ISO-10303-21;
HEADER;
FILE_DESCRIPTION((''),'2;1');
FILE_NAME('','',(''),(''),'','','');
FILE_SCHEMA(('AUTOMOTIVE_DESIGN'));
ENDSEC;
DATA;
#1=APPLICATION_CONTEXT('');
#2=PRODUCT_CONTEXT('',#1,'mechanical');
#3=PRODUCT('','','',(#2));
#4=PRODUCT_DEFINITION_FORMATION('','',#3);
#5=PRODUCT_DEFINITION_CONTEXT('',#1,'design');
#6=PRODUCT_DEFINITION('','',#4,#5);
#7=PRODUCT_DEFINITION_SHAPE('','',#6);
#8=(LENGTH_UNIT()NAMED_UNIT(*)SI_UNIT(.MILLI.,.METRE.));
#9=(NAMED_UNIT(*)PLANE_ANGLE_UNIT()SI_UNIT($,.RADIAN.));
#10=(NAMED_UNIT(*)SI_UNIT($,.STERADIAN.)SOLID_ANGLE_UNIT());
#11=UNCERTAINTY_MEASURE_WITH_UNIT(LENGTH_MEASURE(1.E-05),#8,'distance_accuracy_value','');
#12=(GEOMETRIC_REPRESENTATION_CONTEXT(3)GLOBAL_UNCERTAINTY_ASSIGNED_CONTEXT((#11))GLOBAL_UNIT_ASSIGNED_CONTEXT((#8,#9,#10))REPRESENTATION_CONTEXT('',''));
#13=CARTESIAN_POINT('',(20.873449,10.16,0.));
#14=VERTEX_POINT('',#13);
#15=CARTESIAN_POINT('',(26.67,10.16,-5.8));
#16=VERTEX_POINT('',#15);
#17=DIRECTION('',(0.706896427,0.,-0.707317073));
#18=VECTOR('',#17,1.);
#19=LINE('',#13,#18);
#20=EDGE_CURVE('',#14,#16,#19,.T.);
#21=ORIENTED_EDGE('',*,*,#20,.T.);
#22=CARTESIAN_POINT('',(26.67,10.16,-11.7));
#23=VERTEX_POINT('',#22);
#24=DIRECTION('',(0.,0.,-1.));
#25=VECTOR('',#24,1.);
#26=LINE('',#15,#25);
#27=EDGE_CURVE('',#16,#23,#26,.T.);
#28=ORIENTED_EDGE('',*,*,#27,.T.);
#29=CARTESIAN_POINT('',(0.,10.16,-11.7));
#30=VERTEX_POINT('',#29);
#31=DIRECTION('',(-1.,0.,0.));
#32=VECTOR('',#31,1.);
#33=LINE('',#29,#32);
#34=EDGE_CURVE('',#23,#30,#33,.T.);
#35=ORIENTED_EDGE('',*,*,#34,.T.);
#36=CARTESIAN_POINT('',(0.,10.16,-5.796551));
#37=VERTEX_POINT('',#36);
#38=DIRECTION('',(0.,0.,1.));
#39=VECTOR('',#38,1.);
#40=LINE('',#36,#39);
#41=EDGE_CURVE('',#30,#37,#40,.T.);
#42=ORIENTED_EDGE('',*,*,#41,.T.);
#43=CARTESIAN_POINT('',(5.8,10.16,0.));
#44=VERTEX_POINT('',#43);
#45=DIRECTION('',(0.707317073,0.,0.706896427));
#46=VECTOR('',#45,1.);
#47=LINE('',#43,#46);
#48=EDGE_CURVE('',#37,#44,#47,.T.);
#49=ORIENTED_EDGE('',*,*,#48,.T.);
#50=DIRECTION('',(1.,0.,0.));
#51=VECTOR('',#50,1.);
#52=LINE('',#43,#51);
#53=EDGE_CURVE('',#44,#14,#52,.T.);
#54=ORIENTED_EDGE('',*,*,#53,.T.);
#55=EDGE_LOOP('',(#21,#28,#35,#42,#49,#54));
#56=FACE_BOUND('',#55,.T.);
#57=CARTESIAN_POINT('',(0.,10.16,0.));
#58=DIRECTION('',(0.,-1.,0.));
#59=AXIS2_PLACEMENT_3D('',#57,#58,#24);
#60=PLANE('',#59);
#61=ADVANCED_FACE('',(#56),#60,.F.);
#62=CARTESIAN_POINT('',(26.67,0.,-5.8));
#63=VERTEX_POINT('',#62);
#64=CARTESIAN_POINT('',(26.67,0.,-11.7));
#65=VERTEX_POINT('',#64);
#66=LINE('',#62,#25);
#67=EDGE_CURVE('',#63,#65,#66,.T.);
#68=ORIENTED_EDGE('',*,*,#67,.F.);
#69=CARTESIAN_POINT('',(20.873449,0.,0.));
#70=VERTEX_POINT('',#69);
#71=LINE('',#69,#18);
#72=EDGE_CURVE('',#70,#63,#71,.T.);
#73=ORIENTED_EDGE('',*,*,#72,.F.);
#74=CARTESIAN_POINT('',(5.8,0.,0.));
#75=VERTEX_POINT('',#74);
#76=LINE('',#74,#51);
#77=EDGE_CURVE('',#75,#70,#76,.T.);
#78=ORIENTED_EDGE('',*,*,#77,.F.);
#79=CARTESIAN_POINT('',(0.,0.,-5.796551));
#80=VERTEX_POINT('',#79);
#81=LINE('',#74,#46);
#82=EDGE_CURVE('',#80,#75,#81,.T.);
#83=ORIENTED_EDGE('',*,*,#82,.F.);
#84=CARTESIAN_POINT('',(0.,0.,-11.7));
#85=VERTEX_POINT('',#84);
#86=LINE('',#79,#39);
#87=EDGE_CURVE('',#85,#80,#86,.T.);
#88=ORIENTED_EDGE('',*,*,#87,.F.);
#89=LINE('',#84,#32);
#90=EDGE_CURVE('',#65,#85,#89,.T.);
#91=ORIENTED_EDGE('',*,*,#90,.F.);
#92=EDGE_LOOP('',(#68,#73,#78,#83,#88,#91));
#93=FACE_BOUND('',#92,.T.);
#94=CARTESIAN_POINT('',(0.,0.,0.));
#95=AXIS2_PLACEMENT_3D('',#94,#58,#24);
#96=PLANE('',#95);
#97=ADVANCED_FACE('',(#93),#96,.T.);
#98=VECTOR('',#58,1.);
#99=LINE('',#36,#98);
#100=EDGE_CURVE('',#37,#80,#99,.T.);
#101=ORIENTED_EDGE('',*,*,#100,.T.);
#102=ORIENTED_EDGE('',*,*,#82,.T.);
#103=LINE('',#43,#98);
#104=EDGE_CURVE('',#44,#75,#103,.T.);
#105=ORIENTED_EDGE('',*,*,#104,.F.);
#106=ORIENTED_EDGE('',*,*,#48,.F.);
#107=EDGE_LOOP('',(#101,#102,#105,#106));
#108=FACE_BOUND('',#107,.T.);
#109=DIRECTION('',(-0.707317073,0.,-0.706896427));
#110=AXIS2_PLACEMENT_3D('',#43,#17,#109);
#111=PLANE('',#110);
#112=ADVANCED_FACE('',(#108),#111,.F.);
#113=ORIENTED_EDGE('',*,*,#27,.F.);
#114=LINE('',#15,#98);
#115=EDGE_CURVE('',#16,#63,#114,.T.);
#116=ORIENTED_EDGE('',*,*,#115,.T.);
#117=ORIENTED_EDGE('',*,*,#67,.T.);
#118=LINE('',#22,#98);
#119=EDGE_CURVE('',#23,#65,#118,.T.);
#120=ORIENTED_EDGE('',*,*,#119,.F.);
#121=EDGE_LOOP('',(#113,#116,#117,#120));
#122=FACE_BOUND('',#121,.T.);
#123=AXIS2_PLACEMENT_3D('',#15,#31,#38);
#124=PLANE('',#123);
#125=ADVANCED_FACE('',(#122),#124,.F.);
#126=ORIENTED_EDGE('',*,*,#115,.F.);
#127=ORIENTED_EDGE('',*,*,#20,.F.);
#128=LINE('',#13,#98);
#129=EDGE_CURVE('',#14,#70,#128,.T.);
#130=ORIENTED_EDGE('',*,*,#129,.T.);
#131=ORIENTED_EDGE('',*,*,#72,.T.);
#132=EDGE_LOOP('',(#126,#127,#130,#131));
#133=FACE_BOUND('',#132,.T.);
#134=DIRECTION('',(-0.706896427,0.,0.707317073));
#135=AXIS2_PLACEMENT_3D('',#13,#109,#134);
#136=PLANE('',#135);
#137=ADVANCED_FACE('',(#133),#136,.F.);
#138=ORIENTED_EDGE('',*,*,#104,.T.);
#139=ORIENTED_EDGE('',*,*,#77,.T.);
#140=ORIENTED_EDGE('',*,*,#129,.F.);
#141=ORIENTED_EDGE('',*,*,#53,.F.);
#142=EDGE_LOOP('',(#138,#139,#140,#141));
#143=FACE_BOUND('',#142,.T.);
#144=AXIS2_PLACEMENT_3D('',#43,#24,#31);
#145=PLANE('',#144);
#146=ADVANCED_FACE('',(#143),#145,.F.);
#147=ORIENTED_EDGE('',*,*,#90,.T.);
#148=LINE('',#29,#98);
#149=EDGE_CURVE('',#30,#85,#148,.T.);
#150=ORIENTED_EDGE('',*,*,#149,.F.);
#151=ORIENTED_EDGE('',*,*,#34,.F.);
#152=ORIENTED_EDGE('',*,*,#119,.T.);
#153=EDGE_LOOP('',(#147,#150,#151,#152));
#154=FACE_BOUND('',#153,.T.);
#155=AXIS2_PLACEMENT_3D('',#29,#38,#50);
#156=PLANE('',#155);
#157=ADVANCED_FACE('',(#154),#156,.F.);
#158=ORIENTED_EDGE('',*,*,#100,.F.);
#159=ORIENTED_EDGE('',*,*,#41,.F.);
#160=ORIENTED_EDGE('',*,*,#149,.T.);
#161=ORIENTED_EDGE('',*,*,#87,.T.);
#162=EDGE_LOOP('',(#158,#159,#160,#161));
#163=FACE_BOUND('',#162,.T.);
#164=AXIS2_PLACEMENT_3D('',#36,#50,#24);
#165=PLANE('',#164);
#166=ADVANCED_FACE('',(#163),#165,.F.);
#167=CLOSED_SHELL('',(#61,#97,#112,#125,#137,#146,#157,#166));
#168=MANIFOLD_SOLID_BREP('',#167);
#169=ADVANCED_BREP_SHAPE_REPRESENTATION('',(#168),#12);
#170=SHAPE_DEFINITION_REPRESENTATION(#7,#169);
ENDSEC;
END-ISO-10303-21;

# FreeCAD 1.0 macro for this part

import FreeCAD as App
import Part
import Sketcher
from FreeCAD import Vector


def add_polygon(sketch, points):
    """Adds a closed chain of lines whose ends are joined by coincident constraints."""
    first, n = sketch.GeometryCount, len(points)
    for a, b in zip(points, points[1:] + points[:1]):
        sketch.addGeometry(Part.LineSegment(App.Vector(*a, 0), App.Vector(*b, 0)), False)
    for i in range(n):
        sketch.addConstraint(Sketcher.Constraint("Coincident", first + i, 2, first + (i + 1) % n, 1))

doc = App.newDocument("Part")
body = doc.addObject("PartDesign::Body", "Body")

# Sketch on XZ plane
sketch1 = body.newObject("Sketcher::SketchObject", "Sketch")
sketch1.AttachmentSupport = (doc.getObject("XZ_Plane"), [""])
sketch1.MapMode = "FlatFace"
add_polygon(sketch1, [(21, 0), (27, -6), (27, -12), (0, -12), (0, -6), (6, 0)])  # lines 0-5
sketch1.addConstraint([
    Sketcher.Constraint("Vertical", 1),
    Sketcher.Constraint("Horizontal", 2),
    Sketcher.Constraint("Vertical", 3),
    Sketcher.Constraint("Horizontal", 5),
    Sketcher.Constraint("PointOnObject", 2, 2, -2),
    Sketcher.Constraint("PointOnObject", 4, 2, -1),
    Sketcher.Constraint("Perpendicular", 0, 4),
    Sketcher.Constraint("Equal", 0, 4),
    Sketcher.Constraint("DistanceY", 1, 2, 1, 1, 5.9),
    Sketcher.Constraint("Distance", 0, 8.2),
    Sketcher.Constraint("DistanceX", 2, 2, 2, 1, 26.67),
    Sketcher.Constraint("DistanceY", 0, 2, -1, 1, 5.8),
])
pad1 = body.newObject("PartDesign::Pad", "Pad")
pad1.Profile = sketch1
pad1.Length = 10.16
pad1.Reversed = True

doc.recompute()
